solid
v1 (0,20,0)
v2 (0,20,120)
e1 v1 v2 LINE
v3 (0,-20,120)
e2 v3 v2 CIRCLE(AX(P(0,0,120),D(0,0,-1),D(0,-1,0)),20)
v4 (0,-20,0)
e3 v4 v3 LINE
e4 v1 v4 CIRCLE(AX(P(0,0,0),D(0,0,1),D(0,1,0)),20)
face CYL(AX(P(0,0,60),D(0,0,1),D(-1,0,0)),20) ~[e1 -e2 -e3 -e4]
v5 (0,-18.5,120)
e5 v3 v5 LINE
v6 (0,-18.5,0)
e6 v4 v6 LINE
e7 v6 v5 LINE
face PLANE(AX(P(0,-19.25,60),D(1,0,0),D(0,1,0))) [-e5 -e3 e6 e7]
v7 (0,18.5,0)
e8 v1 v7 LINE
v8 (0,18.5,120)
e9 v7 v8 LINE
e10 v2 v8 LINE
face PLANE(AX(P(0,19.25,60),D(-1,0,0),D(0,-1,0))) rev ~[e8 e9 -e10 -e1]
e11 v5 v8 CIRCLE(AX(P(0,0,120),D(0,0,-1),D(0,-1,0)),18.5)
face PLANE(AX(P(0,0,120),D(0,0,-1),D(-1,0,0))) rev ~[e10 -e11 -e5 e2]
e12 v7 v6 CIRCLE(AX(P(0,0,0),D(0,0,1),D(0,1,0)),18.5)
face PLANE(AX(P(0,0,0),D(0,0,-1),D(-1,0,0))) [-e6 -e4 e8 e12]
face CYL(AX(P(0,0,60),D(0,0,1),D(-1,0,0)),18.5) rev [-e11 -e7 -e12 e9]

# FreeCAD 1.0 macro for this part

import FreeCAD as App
import Part
import Sketcher
Q = App.Units.Quantity

doc = App.newDocument("Part")
params = doc.addObject("Spreadsheet::Sheet", "Params")
for row, (alias, value) in enumerate([
    ("sketch1_height", "120 mm"),
    ("sketch1_width", "1.5 mm"),
    ("revolution_angle", "90 deg"),
    ("sketch2_height", "120 mm"),
    ("sketch2_width", "1.5 mm"),
    ("revolution2_angle", "90 deg"),
], start=1):
    params.set(f"A{row}", alias)
    params.set(f"B{row}", "=" + value)
    params.setAlias(f"B{row}", alias)

body = doc.addObject("PartDesign::Body", "Body")

sketch1 = body.newObject("Sketcher::SketchObject", "Sketch")
sketch1.AttachmentSupport = (doc.getObject("XZ_Plane"), [""])
sketch1.MapMode = "FlatFace"
sketch1.addGeometry(Part.LineSegment(App.Vector(-20, 120, 0), App.Vector(-20, 0, 0)), False)
sketch1.addGeometry(Part.LineSegment(App.Vector(-20, 0, 0), App.Vector(-18.5, 0, 0)), False)
sketch1.addGeometry(Part.LineSegment(App.Vector(-18.5, 0, 0), App.Vector(-18.5, 120, 0)), False)
sketch1.addGeometry(Part.LineSegment(App.Vector(-18.5, 120, 0), App.Vector(-20, 120, 0)), False)
sketch1.addConstraint(Sketcher.Constraint("Coincident", 0, 2, 1, 1))
sketch1.addConstraint(Sketcher.Constraint("Coincident", 1, 2, 2, 1))
sketch1.addConstraint(Sketcher.Constraint("Coincident", 2, 2, 3, 1))
sketch1.addConstraint(Sketcher.Constraint("Coincident", 3, 2, 0, 1))
sketch1.addConstraint(Sketcher.Constraint("Vertical", 0))
sketch1.addConstraint(Sketcher.Constraint("Horizontal", 1))
sketch1.addConstraint(Sketcher.Constraint("Vertical", 2))
sketch1.addConstraint(Sketcher.Constraint("Horizontal", 3))
sketch1.addConstraint(Sketcher.Constraint("PointOnObject", 0, 2, -1))
sketch1.addConstraint(Sketcher.Constraint("DistanceY", 0, 2, 0, 1, Q("120 mm")))
sketch1.addConstraint(Sketcher.Constraint("DistanceX", 1, 1, 1, 2, Q("1.5 mm")))
sketch1.addConstraint(Sketcher.Constraint("DistanceX", 0, 2, -1, 1, Q("20 mm")))
sketch1.setExpression("Constraints[9]", "Params.sketch1_height")
sketch1.setExpression("Constraints[10]", "Params.sketch1_width")
revolution = body.newObject("PartDesign::Revolution", "Revolution")
revolution.Profile = sketch1
revolution.ReferenceAxis = (sketch1, ["V_Axis"])
revolution.setExpression("Angle", "Params.revolution_angle")

sketch2 = body.newObject("Sketcher::SketchObject", "Sketch001")
sketch2.AttachmentSupport = (doc.getObject("XZ_Plane"), [""])
sketch2.MapMode = "FlatFace"
sketch2.addGeometry(Part.LineSegment(App.Vector(-20, 120, 0), App.Vector(-20, 0, 0)), False)
sketch2.addGeometry(Part.LineSegment(App.Vector(-20, 0, 0), App.Vector(-18.5, 0, 0)), False)
sketch2.addGeometry(Part.LineSegment(App.Vector(-18.5, 0, 0), App.Vector(-18.5, 120, 0)), False)
sketch2.addGeometry(Part.LineSegment(App.Vector(-18.5, 120, 0), App.Vector(-20, 120, 0)), False)
sketch2.addConstraint(Sketcher.Constraint("Coincident", 0, 2, 1, 1))
sketch2.addConstraint(Sketcher.Constraint("Coincident", 1, 2, 2, 1))
sketch2.addConstraint(Sketcher.Constraint("Coincident", 2, 2, 3, 1))
sketch2.addConstraint(Sketcher.Constraint("Coincident", 3, 2, 0, 1))
sketch2.addConstraint(Sketcher.Constraint("Vertical", 0))
sketch2.addConstraint(Sketcher.Constraint("Horizontal", 1))
sketch2.addConstraint(Sketcher.Constraint("Vertical", 2))
sketch2.addConstraint(Sketcher.Constraint("Horizontal", 3))
sketch2.addConstraint(Sketcher.Constraint("PointOnObject", 0, 2, -1))
sketch2.addConstraint(Sketcher.Constraint("DistanceY", 0, 2, 0, 1, Q("120 mm")))
sketch2.addConstraint(Sketcher.Constraint("DistanceX", 1, 1, 1, 2, Q("1.5 mm")))
sketch2.addConstraint(Sketcher.Constraint("DistanceX", 0, 2, -1, 1, Q("20 mm")))
sketch2.setExpression("Constraints[9]", "Params.sketch2_height")
sketch2.setExpression("Constraints[10]", "Params.sketch2_width")
revolution2 = body.newObject("PartDesign::Revolution", "Revolution001")
revolution2.Profile = sketch2
revolution2.ReferenceAxis = (sketch2, ["V_Axis"])
revolution2.setExpression("Angle", "Params.revolution2_angle")
revolution2.Reversed = True

doc.recompute()
